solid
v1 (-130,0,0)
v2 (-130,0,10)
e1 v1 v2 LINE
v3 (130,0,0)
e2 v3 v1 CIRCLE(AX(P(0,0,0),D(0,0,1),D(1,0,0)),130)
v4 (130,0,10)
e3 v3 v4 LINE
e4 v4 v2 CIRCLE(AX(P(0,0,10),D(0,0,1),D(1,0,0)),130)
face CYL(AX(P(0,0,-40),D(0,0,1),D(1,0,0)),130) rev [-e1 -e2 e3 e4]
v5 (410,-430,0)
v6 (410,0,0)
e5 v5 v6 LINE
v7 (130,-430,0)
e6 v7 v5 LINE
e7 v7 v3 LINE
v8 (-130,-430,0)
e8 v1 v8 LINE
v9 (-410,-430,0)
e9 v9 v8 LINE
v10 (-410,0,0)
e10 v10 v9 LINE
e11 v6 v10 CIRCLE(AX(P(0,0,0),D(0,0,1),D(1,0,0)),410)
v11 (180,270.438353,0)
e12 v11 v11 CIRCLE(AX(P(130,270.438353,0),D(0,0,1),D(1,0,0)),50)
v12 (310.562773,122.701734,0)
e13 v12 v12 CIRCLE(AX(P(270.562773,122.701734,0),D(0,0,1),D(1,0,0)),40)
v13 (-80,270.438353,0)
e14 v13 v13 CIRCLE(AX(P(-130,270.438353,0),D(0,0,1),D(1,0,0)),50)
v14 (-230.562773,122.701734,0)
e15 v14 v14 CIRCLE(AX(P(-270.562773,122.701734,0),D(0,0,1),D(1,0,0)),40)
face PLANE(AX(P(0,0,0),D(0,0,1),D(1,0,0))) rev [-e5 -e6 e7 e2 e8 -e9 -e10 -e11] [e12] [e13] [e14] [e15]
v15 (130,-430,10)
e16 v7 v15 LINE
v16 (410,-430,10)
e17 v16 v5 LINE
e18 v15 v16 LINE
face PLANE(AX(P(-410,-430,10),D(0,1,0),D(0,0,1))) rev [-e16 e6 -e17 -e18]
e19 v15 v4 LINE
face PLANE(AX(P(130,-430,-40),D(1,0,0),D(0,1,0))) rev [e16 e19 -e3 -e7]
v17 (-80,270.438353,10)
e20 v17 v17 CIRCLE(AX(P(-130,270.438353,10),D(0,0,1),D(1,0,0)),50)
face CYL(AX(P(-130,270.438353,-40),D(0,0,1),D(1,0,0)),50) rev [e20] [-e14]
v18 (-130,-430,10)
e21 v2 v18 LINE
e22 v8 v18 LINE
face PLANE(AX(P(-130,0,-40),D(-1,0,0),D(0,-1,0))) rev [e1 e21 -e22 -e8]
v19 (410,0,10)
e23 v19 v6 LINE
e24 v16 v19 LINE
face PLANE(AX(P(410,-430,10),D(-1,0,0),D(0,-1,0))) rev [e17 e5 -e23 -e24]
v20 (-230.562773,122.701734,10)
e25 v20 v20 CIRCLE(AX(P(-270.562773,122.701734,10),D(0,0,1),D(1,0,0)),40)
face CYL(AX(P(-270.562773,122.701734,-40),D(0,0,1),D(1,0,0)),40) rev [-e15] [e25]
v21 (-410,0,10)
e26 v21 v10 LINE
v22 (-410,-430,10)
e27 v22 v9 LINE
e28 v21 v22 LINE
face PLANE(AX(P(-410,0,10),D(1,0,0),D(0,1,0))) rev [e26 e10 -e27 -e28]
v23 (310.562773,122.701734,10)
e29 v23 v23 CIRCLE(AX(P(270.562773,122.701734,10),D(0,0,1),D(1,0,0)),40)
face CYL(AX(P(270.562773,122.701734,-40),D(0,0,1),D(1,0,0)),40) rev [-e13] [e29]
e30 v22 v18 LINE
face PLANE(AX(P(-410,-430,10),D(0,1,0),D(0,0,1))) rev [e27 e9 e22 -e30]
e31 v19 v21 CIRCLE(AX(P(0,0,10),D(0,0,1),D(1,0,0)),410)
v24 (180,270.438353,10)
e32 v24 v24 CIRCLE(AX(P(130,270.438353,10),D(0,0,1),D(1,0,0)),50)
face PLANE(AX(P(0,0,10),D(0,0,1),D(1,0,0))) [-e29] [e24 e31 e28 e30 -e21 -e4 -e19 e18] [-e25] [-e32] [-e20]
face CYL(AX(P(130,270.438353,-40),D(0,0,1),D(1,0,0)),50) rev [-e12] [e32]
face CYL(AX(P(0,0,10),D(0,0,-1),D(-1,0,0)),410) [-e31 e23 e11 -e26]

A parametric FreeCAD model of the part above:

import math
import FreeCAD as App
import Part
import Sketcher
from FreeCAD import Vector

doc = App.newDocument("Part")
body = doc.addObject("PartDesign::Body", "Body")

# Sketch on XY plane
sketch1 = body.newObject("Sketcher::SketchObject", "Sketch")
sketch1.AttachmentSupport = (doc.getObject("XY_Plane"), [""])
sketch1.MapMode = "FlatFace"
sketch1.addGeometry([
    Part.LineSegment(Vector(-410, 0, 0), Vector(-410, -430, 0)),
    Part.LineSegment(Vector(-410, -430, 0), Vector(410, -430, 0)),
    Part.LineSegment(Vector(410, -430, 0), Vector(410, 0, 0)),
    Part.ArcOfCircle(Part.Circle(Vector(0, 0, 0), Vector(0, 0, 1), 410), math.radians(0), math.radians(180)),
], False)
sketch1.addConstraint([
    Sketcher.Constraint("Coincident", 0, 2, 1, 1),
    Sketcher.Constraint("Coincident", 1, 2, 2, 1),
    Sketcher.Constraint("Tangent", 2, 2, 3, 1),
    Sketcher.Constraint("Tangent", 3, 2, 0, 1),
    Sketcher.Constraint("Vertical", 0),
    Sketcher.Constraint("Horizontal", 1),
    Sketcher.Constraint("Vertical", 2),
    Sketcher.Constraint("Coincident", 3, 3, -1, 1),
    Sketcher.Constraint("Radius", 3, 410.0),
    Sketcher.Constraint("DistanceY", 0, 2, 0, 1, 430.0),
])
pad1 = body.newObject("PartDesign::Pad", "Pad")
pad1.Profile = sketch1
pad1.Length = 10

# Sketch on XY plane
sketch2 = body.newObject("Sketcher::SketchObject", "Sketch001")
sketch2.AttachmentSupport = (doc.getObject("XY_Plane"), [""])
sketch2.MapMode = "FlatFace"
sketch2.AttachmentOffset = App.Placement(Vector(0, 0, 10), App.Rotation())
sketch2.addGeometry([
    Part.Circle(Vector(-130, 270.438353, 0), Vector(0, 0, 1), 50),  # 0
    Part.Circle(Vector(130, 270.438353, 0), Vector(0, 0, 1), 50),  # 1
    Part.Circle(Vector(-270.562773, 122.701734, 0), Vector(0, 0, 1), 40),  # 2
    Part.Circle(Vector(270.562773, 122.701734, 0), Vector(0, 0, 1), 40),  # 3
    Part.LineSegment(Vector(-130, 0, 0), Vector(-130, -430, 0)),  # 4
    Part.LineSegment(Vector(-130, -430, 0), Vector(130, -430, 0)),  # 5
    Part.LineSegment(Vector(130, -430, 0), Vector(130, 0, 0)),  # 6
    Part.ArcOfCircle(Part.Circle(Vector(0, 0, 0), Vector(0, 0, 1), 130), math.radians(0), math.radians(180)),  # 7
], False)
sketch2.addConstraint([
    Sketcher.Constraint("Coincident", 4, 2, 5, 1),
    Sketcher.Constraint("Coincident", 5, 2, 6, 1),
    Sketcher.Constraint("Tangent", 6, 2, 7, 1),
    Sketcher.Constraint("Tangent", 7, 2, 4, 1),
    Sketcher.Constraint("Vertical", 4),
    Sketcher.Constraint("Horizontal", 5),
    Sketcher.Constraint("Vertical", 6),
    Sketcher.Constraint("Coincident", 7, 3, -1, 1),
    Sketcher.Constraint("Equal", 0, 1),
    Sketcher.Constraint("Equal", 2, 3),
    Sketcher.Constraint("Symmetric", 0, 3, 1, 3, -2),
    Sketcher.Constraint("Symmetric", 2, 3, 3, 3, -2),
    Sketcher.Constraint("Vertical", 0, 3, 4, 2),
    Sketcher.Constraint("Diameter", 0, 100.0),
    Sketcher.Constraint("Diameter", 2, 80.0),
    Sketcher.Constraint("Radius", 7, 130.0),
    Sketcher.Constraint("DistanceY", 4, 2, 4, 1, 430.0),
    Sketcher.Constraint("DistanceY", 2, 3, 0, 3, 147.736618),
    Sketcher.Constraint("DistanceY", -1, 1, 0, 3, 270.438353),
    Sketcher.Constraint("DistanceX", 2, 3, -1, 1, 270.562773),
])
pocket1 = body.newObject("PartDesign::Pocket", "Pocket")
pocket1.Profile = sketch2
pocket1.Length = 50

doc.recompute()
